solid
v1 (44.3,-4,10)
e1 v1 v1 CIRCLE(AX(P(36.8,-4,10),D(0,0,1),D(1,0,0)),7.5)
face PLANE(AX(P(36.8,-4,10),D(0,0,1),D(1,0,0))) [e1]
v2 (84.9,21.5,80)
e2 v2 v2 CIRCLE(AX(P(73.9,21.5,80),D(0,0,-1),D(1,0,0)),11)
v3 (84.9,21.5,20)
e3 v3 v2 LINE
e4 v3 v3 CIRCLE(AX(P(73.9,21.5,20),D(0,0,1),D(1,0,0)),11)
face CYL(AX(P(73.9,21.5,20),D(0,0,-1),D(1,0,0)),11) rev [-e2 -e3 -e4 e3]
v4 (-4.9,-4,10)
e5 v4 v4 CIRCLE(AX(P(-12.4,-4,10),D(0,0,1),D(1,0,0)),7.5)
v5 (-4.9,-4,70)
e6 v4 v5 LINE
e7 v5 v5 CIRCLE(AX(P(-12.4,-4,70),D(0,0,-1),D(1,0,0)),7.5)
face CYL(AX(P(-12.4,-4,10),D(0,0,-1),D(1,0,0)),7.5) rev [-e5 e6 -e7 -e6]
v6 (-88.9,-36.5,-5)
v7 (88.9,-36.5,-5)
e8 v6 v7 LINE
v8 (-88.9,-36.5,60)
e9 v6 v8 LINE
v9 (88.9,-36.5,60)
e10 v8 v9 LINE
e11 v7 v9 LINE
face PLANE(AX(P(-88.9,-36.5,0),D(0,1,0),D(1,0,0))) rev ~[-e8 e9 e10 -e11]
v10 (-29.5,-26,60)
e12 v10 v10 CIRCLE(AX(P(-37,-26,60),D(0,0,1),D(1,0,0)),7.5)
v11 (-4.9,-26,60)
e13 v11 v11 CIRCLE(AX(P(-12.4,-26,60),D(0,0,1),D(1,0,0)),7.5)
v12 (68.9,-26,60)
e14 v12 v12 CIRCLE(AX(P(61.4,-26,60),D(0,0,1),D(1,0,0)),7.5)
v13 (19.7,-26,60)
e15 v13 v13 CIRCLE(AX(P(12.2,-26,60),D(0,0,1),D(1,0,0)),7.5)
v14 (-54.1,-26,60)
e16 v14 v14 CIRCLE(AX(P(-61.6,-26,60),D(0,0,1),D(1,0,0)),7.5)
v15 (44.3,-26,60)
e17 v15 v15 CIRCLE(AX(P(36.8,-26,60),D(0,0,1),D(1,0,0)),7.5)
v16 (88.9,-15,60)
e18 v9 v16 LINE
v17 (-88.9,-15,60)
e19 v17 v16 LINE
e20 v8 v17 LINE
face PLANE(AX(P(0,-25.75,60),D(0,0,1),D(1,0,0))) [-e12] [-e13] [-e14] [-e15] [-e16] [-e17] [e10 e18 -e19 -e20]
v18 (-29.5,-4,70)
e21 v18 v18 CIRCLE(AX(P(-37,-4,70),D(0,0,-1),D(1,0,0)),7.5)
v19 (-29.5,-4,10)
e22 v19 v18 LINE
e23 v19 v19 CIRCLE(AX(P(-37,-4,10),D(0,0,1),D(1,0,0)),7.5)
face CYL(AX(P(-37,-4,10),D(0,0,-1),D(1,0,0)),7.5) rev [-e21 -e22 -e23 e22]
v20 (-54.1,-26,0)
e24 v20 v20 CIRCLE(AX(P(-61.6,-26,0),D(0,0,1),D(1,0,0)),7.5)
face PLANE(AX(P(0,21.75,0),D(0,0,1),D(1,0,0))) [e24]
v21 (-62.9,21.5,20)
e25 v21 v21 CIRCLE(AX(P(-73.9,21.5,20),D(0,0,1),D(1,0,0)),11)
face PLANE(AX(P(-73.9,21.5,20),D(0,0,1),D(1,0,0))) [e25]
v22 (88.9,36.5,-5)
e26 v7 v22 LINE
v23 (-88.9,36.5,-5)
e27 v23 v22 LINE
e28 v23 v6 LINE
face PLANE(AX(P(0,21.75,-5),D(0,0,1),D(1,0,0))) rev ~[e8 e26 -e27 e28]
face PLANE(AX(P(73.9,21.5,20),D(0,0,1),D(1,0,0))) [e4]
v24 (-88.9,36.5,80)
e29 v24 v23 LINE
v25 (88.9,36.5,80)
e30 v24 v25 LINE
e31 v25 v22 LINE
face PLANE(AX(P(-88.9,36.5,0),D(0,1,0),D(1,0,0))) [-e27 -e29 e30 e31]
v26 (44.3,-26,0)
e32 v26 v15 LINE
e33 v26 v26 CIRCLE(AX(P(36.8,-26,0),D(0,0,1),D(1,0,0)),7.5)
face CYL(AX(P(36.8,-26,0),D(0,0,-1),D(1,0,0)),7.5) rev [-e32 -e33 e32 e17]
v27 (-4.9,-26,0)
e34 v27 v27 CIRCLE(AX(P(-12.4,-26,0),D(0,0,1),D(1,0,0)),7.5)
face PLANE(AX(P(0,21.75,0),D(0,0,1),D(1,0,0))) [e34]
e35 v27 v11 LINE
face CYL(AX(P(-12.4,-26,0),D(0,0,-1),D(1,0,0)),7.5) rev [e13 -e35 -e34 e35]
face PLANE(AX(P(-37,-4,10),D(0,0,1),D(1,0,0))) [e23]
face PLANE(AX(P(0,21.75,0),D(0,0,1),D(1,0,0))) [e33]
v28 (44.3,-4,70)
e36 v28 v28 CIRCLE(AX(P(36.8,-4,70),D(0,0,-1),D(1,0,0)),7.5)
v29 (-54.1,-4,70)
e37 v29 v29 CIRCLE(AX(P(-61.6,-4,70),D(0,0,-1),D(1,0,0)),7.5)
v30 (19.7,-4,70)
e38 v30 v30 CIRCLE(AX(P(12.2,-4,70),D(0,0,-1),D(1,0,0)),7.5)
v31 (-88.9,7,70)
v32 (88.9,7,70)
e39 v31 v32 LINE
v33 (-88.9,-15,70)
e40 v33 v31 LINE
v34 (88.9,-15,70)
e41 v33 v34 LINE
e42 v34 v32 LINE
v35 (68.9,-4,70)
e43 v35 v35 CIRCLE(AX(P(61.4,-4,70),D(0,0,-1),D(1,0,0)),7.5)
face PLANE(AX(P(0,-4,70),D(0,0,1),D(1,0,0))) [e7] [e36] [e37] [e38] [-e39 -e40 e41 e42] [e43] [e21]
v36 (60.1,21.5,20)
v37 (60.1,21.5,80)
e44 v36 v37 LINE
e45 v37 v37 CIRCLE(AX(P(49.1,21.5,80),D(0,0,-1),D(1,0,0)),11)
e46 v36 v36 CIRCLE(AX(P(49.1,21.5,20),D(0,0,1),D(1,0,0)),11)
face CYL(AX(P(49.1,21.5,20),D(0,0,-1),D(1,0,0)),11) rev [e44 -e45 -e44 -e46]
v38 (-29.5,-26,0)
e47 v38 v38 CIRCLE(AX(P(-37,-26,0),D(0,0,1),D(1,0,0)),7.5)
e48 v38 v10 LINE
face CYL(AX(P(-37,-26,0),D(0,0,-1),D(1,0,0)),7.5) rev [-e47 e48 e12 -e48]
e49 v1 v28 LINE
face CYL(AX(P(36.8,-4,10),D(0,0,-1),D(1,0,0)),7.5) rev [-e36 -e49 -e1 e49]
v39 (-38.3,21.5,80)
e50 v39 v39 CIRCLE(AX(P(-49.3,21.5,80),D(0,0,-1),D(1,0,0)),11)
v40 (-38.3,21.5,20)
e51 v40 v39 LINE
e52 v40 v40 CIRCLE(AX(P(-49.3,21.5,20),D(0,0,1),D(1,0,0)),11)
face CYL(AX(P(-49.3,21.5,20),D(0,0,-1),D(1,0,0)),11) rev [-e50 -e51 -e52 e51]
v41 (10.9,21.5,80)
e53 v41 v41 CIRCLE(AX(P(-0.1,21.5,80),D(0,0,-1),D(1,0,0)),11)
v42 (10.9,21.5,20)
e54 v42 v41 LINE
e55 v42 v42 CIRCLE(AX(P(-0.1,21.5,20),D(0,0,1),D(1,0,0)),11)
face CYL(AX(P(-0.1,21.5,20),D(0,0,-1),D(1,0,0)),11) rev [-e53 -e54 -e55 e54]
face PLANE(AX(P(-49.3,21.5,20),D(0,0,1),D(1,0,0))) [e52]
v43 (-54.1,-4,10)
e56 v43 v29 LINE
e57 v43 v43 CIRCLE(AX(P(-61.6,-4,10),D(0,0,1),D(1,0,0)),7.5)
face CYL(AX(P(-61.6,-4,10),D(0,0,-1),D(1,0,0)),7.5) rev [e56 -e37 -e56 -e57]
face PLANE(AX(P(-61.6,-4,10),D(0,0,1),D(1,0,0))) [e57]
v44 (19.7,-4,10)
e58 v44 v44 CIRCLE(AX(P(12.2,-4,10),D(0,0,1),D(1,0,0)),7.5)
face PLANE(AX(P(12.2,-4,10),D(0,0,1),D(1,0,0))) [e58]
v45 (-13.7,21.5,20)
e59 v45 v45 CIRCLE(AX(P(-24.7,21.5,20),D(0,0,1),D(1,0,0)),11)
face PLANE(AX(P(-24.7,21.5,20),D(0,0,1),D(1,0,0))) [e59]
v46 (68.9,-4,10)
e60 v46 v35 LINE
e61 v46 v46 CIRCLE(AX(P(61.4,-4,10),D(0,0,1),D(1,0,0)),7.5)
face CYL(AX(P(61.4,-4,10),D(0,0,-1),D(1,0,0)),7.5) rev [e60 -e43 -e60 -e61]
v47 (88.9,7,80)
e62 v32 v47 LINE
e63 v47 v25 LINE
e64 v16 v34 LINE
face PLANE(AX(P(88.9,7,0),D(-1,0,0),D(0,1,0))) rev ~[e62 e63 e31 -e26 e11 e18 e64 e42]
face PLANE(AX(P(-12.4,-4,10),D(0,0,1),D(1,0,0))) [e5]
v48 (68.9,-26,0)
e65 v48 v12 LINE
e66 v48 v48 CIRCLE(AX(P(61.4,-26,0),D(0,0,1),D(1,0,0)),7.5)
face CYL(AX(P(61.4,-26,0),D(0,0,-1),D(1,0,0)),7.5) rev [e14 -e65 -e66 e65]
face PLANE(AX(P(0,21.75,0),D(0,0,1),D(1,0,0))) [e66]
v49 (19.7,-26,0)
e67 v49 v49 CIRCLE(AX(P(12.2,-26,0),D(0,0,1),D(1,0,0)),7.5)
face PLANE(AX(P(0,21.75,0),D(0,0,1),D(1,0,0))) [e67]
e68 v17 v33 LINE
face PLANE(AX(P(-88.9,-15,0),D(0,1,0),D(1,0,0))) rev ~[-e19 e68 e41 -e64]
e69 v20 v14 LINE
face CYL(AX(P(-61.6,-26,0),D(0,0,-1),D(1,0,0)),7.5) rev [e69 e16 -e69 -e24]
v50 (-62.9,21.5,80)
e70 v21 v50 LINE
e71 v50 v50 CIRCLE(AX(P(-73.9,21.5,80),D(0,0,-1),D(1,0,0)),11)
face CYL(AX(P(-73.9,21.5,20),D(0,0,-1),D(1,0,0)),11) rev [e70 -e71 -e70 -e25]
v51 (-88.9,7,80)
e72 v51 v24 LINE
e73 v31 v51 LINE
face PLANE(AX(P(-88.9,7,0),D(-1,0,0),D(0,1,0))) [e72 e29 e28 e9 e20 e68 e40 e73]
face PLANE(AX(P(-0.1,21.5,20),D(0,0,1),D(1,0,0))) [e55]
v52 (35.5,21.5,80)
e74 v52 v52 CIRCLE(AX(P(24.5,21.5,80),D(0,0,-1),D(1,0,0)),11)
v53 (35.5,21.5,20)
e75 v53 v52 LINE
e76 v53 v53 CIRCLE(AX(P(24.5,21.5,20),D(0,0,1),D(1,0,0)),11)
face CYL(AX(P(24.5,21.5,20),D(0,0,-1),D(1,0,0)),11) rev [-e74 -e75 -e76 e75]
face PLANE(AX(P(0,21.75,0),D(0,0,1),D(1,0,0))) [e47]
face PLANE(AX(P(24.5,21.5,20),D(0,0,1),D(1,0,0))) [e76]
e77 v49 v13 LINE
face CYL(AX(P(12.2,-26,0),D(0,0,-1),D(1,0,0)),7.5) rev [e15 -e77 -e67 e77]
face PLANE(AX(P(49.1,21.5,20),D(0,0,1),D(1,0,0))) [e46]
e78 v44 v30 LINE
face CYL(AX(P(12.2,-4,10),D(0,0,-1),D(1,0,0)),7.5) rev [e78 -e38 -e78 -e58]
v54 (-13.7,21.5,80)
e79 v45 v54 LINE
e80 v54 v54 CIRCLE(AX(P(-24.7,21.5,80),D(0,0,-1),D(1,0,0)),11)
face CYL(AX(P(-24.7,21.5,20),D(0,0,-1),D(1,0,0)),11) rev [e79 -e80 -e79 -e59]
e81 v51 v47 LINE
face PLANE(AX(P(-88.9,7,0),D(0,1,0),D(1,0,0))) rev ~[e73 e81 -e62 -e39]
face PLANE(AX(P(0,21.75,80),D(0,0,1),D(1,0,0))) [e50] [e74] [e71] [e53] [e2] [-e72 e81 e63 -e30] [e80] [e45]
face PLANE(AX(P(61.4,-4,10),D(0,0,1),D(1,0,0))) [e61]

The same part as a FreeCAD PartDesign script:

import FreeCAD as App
import Part
import Sketcher

V = App.Vector
Q = App.Units.Quantity


def add_polygon(sketch, points):
    """Adds a closed chain of lines whose ends are joined by coincident constraints."""
    first, n = sketch.GeometryCount, len(points)
    for a, b in zip(points, points[1:] + points[:1]):
        sketch.addGeometry(Part.LineSegment(App.Vector(*a, 0), App.Vector(*b, 0)), False)
    for i in range(n):
        sketch.addConstraint(Sketcher.Constraint("Coincident", first + i, 2, first + (i + 1) % n, 1))

doc = App.newDocument("Part")
body = doc.addObject("PartDesign::Body", "Body")

# Sketch on XY plane
sketch1 = body.newObject("Sketcher::SketchObject", "Sketch")
sketch1.AttachmentSupport = (doc.getObject("XY_Plane"), [""])
sketch1.MapMode = "FlatFace"
add_polygon(sketch1, [(-89, 36), (-89, -36), (89, -36), (89, 36)])  # lines 0-3
sketch1.addConstraint(Sketcher.Constraint("Vertical", 0))
sketch1.addConstraint(Sketcher.Constraint("Horizontal", 1))
sketch1.addConstraint(Sketcher.Constraint("Vertical", 2))
sketch1.addConstraint(Sketcher.Constraint("Horizontal", 3))
sketch1.addConstraint(Sketcher.Constraint("Symmetric", 0, 2, 2, 2, -1, 1))
sketch1.addConstraint(Sketcher.Constraint("DistanceY", 0, 2, 0, 1, Q("73 mm")))
sketch1.addConstraint(Sketcher.Constraint("DistanceX", 1, 1, 1, 2, Q("177.8 mm")))
pad1 = body.newObject("PartDesign::Pad", "Pad")
pad1.Profile = sketch1
pad1.Length = 5
pad1.Reversed = True

# Sketch on XY plane
sketch2 = body.newObject("Sketcher::SketchObject", "Sketch001")
sketch2.AttachmentSupport = (doc.getObject("XY_Plane"), [""])
sketch2.MapMode = "FlatFace"
add_polygon(sketch2, [(-89, -15), (-89, -36), (89, -36), (89, -15)])  # lines 0-3
sketch2.addGeometry(Part.Circle(V(-62, -26, 0), V(0, 0, 1), 8), False)  # 4
sketch2.addGeometry(Part.Circle(V(-37, -26, 0), V(0, 0, 1), 8), False)  # 5
sketch2.addGeometry(Part.Circle(V(-12, -26, 0), V(0, 0, 1), 8), False)  # 6
sketch2.addGeometry(Part.Circle(V(12, -26, 0), V(0, 0, 1), 8), False)  # 7
sketch2.addGeometry(Part.Circle(V(37, -26, 0), V(0, 0, 1), 8), False)  # 8
sketch2.addGeometry(Part.Circle(V(61, -26, 0), V(0, 0, 1), 8), False)  # 9
sketch2.addConstraint(Sketcher.Constraint("Vertical", 0))
sketch2.addConstraint(Sketcher.Constraint("Horizontal", 1))
sketch2.addConstraint(Sketcher.Constraint("Vertical", 2))
sketch2.addConstraint(Sketcher.Constraint("Horizontal", 3))
sketch2.addConstraint(Sketcher.Constraint("Equal", 4, 5))
sketch2.addConstraint(Sketcher.Constraint("Equal", 5, 6))
sketch2.addConstraint(Sketcher.Constraint("Equal", 6, 7))
sketch2.addConstraint(Sketcher.Constraint("Equal", 7, 8))
sketch2.addConstraint(Sketcher.Constraint("Equal", 8, 9))
sketch2.addConstraint(Sketcher.Constraint("Horizontal", 4, 3, 5, 3))
sketch2.addConstraint(Sketcher.Constraint("Horizontal", 5, 3, 6, 3))
sketch2.addConstraint(Sketcher.Constraint("Horizontal", 6, 3, 7, 3))
sketch2.addConstraint(Sketcher.Constraint("Horizontal", 7, 3, 8, 3))
sketch2.addConstraint(Sketcher.Constraint("Horizontal", 8, 3, 9, 3))
sketch2.addConstraint(Sketcher.Constraint("Diameter", 4, Q("15 mm")))
sketch2.addConstraint(Sketcher.Constraint("DistanceX", 1, 1, 1, 2, Q("177.8 mm")))
sketch2.addConstraint(Sketcher.Constraint("DistanceY", 0, 2, 0, 1, Q("21.5 mm")))
sketch2.addConstraint(Sketcher.Constraint("DistanceY", 4, 3, -1, 1, Q("26 mm")))
sketch2.addConstraint(Sketcher.Constraint("DistanceX", 5, 3, -1, 1, Q("37 mm")))
sketch2.addConstraint(Sketcher.Constraint("DistanceY", 2, 2, -1, 1, Q("15 mm")))
sketch2.addConstraint(Sketcher.Constraint("DistanceX", 4, 3, 9, 3, Q("123 mm")))
sketch2.addConstraint(Sketcher.Constraint("DistanceX", 4, 3, -1, 1, Q("61.6 mm")))
sketch2.addConstraint(Sketcher.Constraint("DistanceX", 6, 3, -1, 1, Q("12.4 mm")))
sketch2.addConstraint(Sketcher.Constraint("DistanceX", -1, 1, 7, 3, Q("12.2 mm")))
sketch2.addConstraint(Sketcher.Constraint("DistanceX", -1, 1, 8, 3, Q("36.8 mm")))
sketch2.addConstraint(Sketcher.Constraint("DistanceX", 0, 2, -1, 1, Q("88.9 mm")))
pad2 = body.newObject("PartDesign::Pad", "Pad001")
pad2.Profile = sketch2
pad2.Length = 60

# Sketch on XY plane
sketch3 = body.newObject("Sketcher::SketchObject", "Sketch002")
sketch3.AttachmentSupport = (doc.getObject("XY_Plane"), [""])
sketch3.MapMode = "FlatFace"
add_polygon(sketch3, [(-89, 7), (-89, -15), (89, -15), (89, 7)])  # lines 0-3
sketch3.addConstraint(Sketcher.Constraint("Vertical", 0))
sketch3.addConstraint(Sketcher.Constraint("Horizontal", 1))
sketch3.addConstraint(Sketcher.Constraint("Vertical", 2))
sketch3.addConstraint(Sketcher.Constraint("Horizontal", 3))
sketch3.addConstraint(Sketcher.Constraint("DistanceY", 0, 2, 0, 1, Q("22 mm")))
sketch3.addConstraint(Sketcher.Constraint("DistanceX", 1, 1, 1, 2, Q("177.8 mm")))
sketch3.addConstraint(Sketcher.Constraint("DistanceY", 0, 2, -1, 1, Q("15 mm")))
sketch3.addConstraint(Sketcher.Constraint("DistanceX", 0, 2, -1, 1, Q("88.9 mm")))
pad3 = body.newObject("PartDesign::Pad", "Pad002")
pad3.Profile = sketch3
pad3.Length = 70
body2 = doc.addObject("PartDesign::Body", "Body001")

# Sketch on XY plane
sketch4 = body2.newObject("Sketcher::SketchObject", "Sketch003")
sketch4.AttachmentSupport = (doc.getObject("XY_Plane001"), [""])
sketch4.MapMode = "FlatFace"
sketch4.addGeometry(Part.Circle(V(-62, -4, 0), V(0, 0, 1), 8), False)
sketch4.addConstraint(Sketcher.Constraint("Diameter", 0, Q("15 mm")))
sketch4.addConstraint(Sketcher.Constraint("DistanceY", 0, 3, -1, 1, Q("4 mm")))
sketch4.addConstraint(Sketcher.Constraint("DistanceX", 0, 3, -1, 1, Q("61.6 mm")))
pad4 = body2.newObject("PartDesign::Pad", "Pad003")
pad4.Profile = sketch4
pad4.Length = 70
body3 = doc.addObject("PartDesign::Body", "Body002")

# Sketch on XY plane
sketch5 = body3.newObject("Sketcher::SketchObject", "Sketch004")
sketch5.AttachmentSupport = (doc.getObject("XY_Plane002"), [""])
sketch5.MapMode = "FlatFace"
sketch5.addGeometry(Part.Circle(V(-37, -4, 0), V(0, 0, 1), 8), False)
sketch5.addConstraint(Sketcher.Constraint("Diameter", 0, Q("15 mm")))
sketch5.addConstraint(Sketcher.Constraint("DistanceX", 0, 3, -1, 1, Q("37 mm")))
sketch5.addConstraint(Sketcher.Constraint("DistanceY", 0, 3, -1, 1, Q("4 mm")))
pad5 = body3.newObject("PartDesign::Pad", "Pad004")
pad5.Profile = sketch5
pad5.Length = 70
body4 = doc.addObject("PartDesign::Body", "Body003")

# Sketch on XY plane
sketch6 = body4.newObject("Sketcher::SketchObject", "Sketch005")
sketch6.AttachmentSupport = (doc.getObject("XY_Plane003"), [""])
sketch6.MapMode = "FlatFace"
sketch6.addGeometry(Part.Circle(V(-12, -4, 0), V(0, 0, 1), 8), False)
sketch6.addConstraint(Sketcher.Constraint("Diameter", 0, Q("15 mm")))
sketch6.addConstraint(Sketcher.Constraint("DistanceY", 0, 3, -1, 1, Q("4 mm")))
sketch6.addConstraint(Sketcher.Constraint("DistanceX", 0, 3, -1, 1, Q("12.4 mm")))
pad6 = body4.newObject("PartDesign::Pad", "Pad005")
pad6.Profile = sketch6
pad6.Length = 70
body5 = doc.addObject("PartDesign::Body", "Body004")

# Sketch on XY plane
sketch7 = body5.newObject("Sketcher::SketchObject", "Sketch006")
sketch7.AttachmentSupport = (doc.getObject("XY_Plane004"), [""])
sketch7.MapMode = "FlatFace"
sketch7.addGeometry(Part.Circle(V(12, -4, 0), V(0, 0, 1), 8), False)
sketch7.addConstraint(Sketcher.Constraint("Diameter", 0, Q("15 mm")))
sketch7.addConstraint(Sketcher.Constraint("DistanceY", 0, 3, -1, 1, Q("4 mm")))
sketch7.addConstraint(Sketcher.Constraint("DistanceX", -1, 1, 0, 3, Q("12.2 mm")))
pad7 = body5.newObject("PartDesign::Pad", "Pad006")
pad7.Profile = sketch7
pad7.Length = 70
body6 = doc.addObject("PartDesign::Body", "Body005")

# Sketch on XY plane
sketch8 = body6.newObject("Sketcher::SketchObject", "Sketch007")
sketch8.AttachmentSupport = (doc.getObject("XY_Plane005"), [""])
sketch8.MapMode = "FlatFace"
sketch8.addGeometry(Part.Circle(V(37, -4, 0), V(0, 0, 1), 8), False)
sketch8.addConstraint(Sketcher.Constraint("Diameter", 0, Q("15 mm")))
sketch8.addConstraint(Sketcher.Constraint("DistanceY", 0, 3, -1, 1, Q("4 mm")))
sketch8.addConstraint(Sketcher.Constraint("DistanceX", -1, 1, 0, 3, Q("36.8 mm")))
pad8 = body6.newObject("PartDesign::Pad", "Pad007")
pad8.Profile = sketch8
pad8.Length = 70
body7 = doc.addObject("PartDesign::Body", "Body006")

# Sketch on XY plane
sketch9 = body7.newObject("Sketcher::SketchObject", "Sketch008")
sketch9.AttachmentSupport = (doc.getObject("XY_Plane006"), [""])
sketch9.MapMode = "FlatFace"
sketch9.addGeometry(Part.Circle(V(61, -4, 0), V(0, 0, 1), 8), False)
sketch9.addConstraint(Sketcher.Constraint("Diameter", 0, Q("15 mm")))
sketch9.addConstraint(Sketcher.Constraint("DistanceY", 0, 3, -1, 1, Q("4 mm")))
sketch9.addConstraint(Sketcher.Constraint("DistanceX", -1, 1, 0, 3, Q("61.4 mm")))
pad9 = body7.newObject("PartDesign::Pad", "Pad008")
pad9.Profile = sketch9
pad9.Length = 70
body8 = doc.addObject("PartDesign::Body", "Body007")
doc.recompute()

body2.Placement = App.Placement(V(0, 0, 10), App.Rotation(V(0, 0, 1), 0))
boolean = body8.newObject("PartDesign::Boolean", "Boolean")
boolean.Type = "Fuse"
boolean.addObjects([body2])
body9 = doc.addObject("PartDesign::Body", "Body008")
doc.recompute()

body3.Placement = App.Placement(V(0, 0, 10), App.Rotation(V(0, 0, 1), 0))
boolean2 = body9.newObject("PartDesign::Boolean", "Boolean001")
boolean2.Type = "Fuse"
boolean2.addObjects([body3])
body10 = doc.addObject("PartDesign::Body", "Body009")
doc.recompute()

body4.Placement = App.Placement(V(0, 0, 10), App.Rotation(V(0, 0, 1), 0))
boolean3 = body10.newObject("PartDesign::Boolean", "Boolean002")
boolean3.Type = "Fuse"
boolean3.addObjects([body4])
body11 = doc.addObject("PartDesign::Body", "Body010")
doc.recompute()

body5.Placement = App.Placement(V(0, 0, 10), App.Rotation(V(0, 0, 1), 0))
boolean4 = body11.newObject("PartDesign::Boolean", "Boolean003")
boolean4.Type = "Fuse"
boolean4.addObjects([body5])
body12 = doc.addObject("PartDesign::Body", "Body011")
doc.recompute()

body6.Placement = App.Placement(V(0, 0, 10), App.Rotation(V(0, 0, 1), 0))
boolean5 = body12.newObject("PartDesign::Boolean", "Boolean004")
boolean5.Type = "Fuse"
boolean5.addObjects([body6])
body13 = doc.addObject("PartDesign::Body", "Body012")
doc.recompute()

body7.Placement = App.Placement(V(0, 0, 10), App.Rotation(V(0, 0, 1), 0))
boolean6 = body13.newObject("PartDesign::Boolean", "Boolean005")
boolean6.Type = "Fuse"
boolean6.addObjects([body7])
doc.recompute()

boolean7 = body.newObject("PartDesign::Boolean", "Boolean006")
boolean7.Type = "Cut"
boolean7.addObjects([body8])
doc.recompute()

boolean8 = body.newObject("PartDesign::Boolean", "Boolean007")
boolean8.Type = "Cut"
boolean8.addObjects([body9])
doc.recompute()

boolean9 = body.newObject("PartDesign::Boolean", "Boolean008")
boolean9.Type = "Cut"
boolean9.addObjects([body10])
doc.recompute()

boolean10 = body.newObject("PartDesign::Boolean", "Boolean009")
boolean10.Type = "Cut"
boolean10.addObjects([body11])
doc.recompute()

boolean11 = body.newObject("PartDesign::Boolean", "Boolean010")
boolean11.Type = "Cut"
boolean11.addObjects([body12])
doc.recompute()

boolean12 = body.newObject("PartDesign::Boolean", "Boolean011")
boolean12.Type = "Cut"
boolean12.addObjects([body13])

# Sketch on XY plane
sketch10 = body.newObject("Sketcher::SketchObject", "Sketch009")
sketch10.AttachmentSupport = (doc.getObject("XY_Plane"), [""])
sketch10.MapMode = "FlatFace"
add_polygon(sketch10, [(-89, 36), (-89, 7), (89, 7), (89, 36)])  # lines 0-3
sketch10.addConstraint(Sketcher.Constraint("Vertical", 0))
sketch10.addConstraint(Sketcher.Constraint("Horizontal", 1))
sketch10.addConstraint(Sketcher.Constraint("Vertical", 2))
sketch10.addConstraint(Sketcher.Constraint("Horizontal", 3))
sketch10.addConstraint(Sketcher.Constraint("DistanceX", 1, 1, 1, 2, Q("177.8 mm")))
sketch10.addConstraint(Sketcher.Constraint("DistanceY", 0, 2, 0, 1, Q("29.5 mm")))
sketch10.addConstraint(Sketcher.Constraint("DistanceY", -1, 1, 0, 2, Q("7 mm")))
sketch10.addConstraint(Sketcher.Constraint("DistanceX", 0, 2, -1, 1, Q("88.9 mm")))
pad10 = body.newObject("PartDesign::Pad", "Pad009")
pad10.Profile = sketch10
pad10.Length = 80
body14 = doc.addObject("PartDesign::Body", "Body013")

# Sketch on XY plane
sketch11 = body14.newObject("Sketcher::SketchObject", "Sketch010")
sketch11.AttachmentSupport = (doc.getObject("XY_Plane013"), [""])
sketch11.MapMode = "FlatFace"
sketch11.addGeometry(Part.Circle(V(-74, 22, 0), V(0, 0, 1), 11), False)
sketch11.addConstraint(Sketcher.Constraint("Diameter", 0, Q("22 mm")))
sketch11.addConstraint(Sketcher.Constraint("DistanceX", 0, 3, -1, 1, Q("73.9 mm")))
sketch11.addConstraint(Sketcher.Constraint("DistanceY", -1, 1, 0, 3, Q("21.5 mm")))
pad11 = body14.newObject("PartDesign::Pad", "Pad010")
pad11.Profile = sketch11
pad11.Length = 90
body15 = doc.addObject("PartDesign::Body", "Body014")

# Sketch on XY plane
sketch12 = body15.newObject("Sketcher::SketchObject", "Sketch011")
sketch12.AttachmentSupport = (doc.getObject("XY_Plane014"), [""])
sketch12.MapMode = "FlatFace"
sketch12.addGeometry(Part.Circle(V(-49, 22, 0), V(0, 0, 1), 11), False)
sketch12.addConstraint(Sketcher.Constraint("Diameter", 0, Q("22 mm")))
sketch12.addConstraint(Sketcher.Constraint("DistanceX", 0, 3, -1, 1, Q("49.3 mm")))
sketch12.addConstraint(Sketcher.Constraint("DistanceY", -1, 1, 0, 3, Q("21.5 mm")))
pad12 = body15.newObject("PartDesign::Pad", "Pad011")
pad12.Profile = sketch12
pad12.Length = 90
body16 = doc.addObject("PartDesign::Body", "Body015")

# Sketch on XY plane
sketch13 = body16.newObject("Sketcher::SketchObject", "Sketch012")
sketch13.AttachmentSupport = (doc.getObject("XY_Plane015"), [""])
sketch13.MapMode = "FlatFace"
sketch13.addGeometry(Part.Circle(V(-25, 22, 0), V(0, 0, 1), 11), False)
sketch13.addConstraint(Sketcher.Constraint("Diameter", 0, Q("22 mm")))
sketch13.addConstraint(Sketcher.Constraint("DistanceX", 0, 3, -1, 1, Q("24.7 mm")))
sketch13.addConstraint(Sketcher.Constraint("DistanceY", -1, 1, 0, 3, Q("21.5 mm")))
pad13 = body16.newObject("PartDesign::Pad", "Pad012")
pad13.Profile = sketch13
pad13.Length = 90
body17 = doc.addObject("PartDesign::Body", "Body016")

# Sketch on XY plane
sketch14 = body17.newObject("Sketcher::SketchObject", "Sketch013")
sketch14.AttachmentSupport = (doc.getObject("XY_Plane016"), [""])
sketch14.MapMode = "FlatFace"
sketch14.addGeometry(Part.Circle(V(0, 22, 0), V(0, 0, 1), 11), False)
sketch14.addConstraint(Sketcher.Constraint("Diameter", 0, Q("22 mm")))
sketch14.addConstraint(Sketcher.Constraint("DistanceX", 0, 3, -1, 1, Q("0.1 mm")))
sketch14.addConstraint(Sketcher.Constraint("DistanceY", -1, 1, 0, 3, Q("21.5 mm")))
pad14 = body17.newObject("PartDesign::Pad", "Pad013")
pad14.Profile = sketch14
pad14.Length = 90
body18 = doc.addObject("PartDesign::Body", "Body017")

# Sketch on XY plane
sketch15 = body18.newObject("Sketcher::SketchObject", "Sketch014")
sketch15.AttachmentSupport = (doc.getObject("XY_Plane017"), [""])
sketch15.MapMode = "FlatFace"
sketch15.addGeometry(Part.Circle(V(24, 22, 0), V(0, 0, 1), 11), False)
sketch15.addConstraint(Sketcher.Constraint("Diameter", 0, Q("22 mm")))
sketch15.addConstraint(Sketcher.Constraint("DistanceX", -1, 1, 0, 3, Q("24.5 mm")))
sketch15.addConstraint(Sketcher.Constraint("DistanceY", -1, 1, 0, 3, Q("21.5 mm")))
pad15 = body18.newObject("PartDesign::Pad", "Pad014")
pad15.Profile = sketch15
pad15.Length = 90
body19 = doc.addObject("PartDesign::Body", "Body018")

# Sketch on XY plane
sketch16 = body19.newObject("Sketcher::SketchObject", "Sketch015")
sketch16.AttachmentSupport = (doc.getObject("XY_Plane018"), [""])
sketch16.MapMode = "FlatFace"
sketch16.addGeometry(Part.Circle(V(49, 22, 0), V(0, 0, 1), 11), False)
sketch16.addConstraint(Sketcher.Constraint("Diameter", 0, Q("22 mm")))
sketch16.addConstraint(Sketcher.Constraint("DistanceX", -1, 1, 0, 3, Q("49.1 mm")))
sketch16.addConstraint(Sketcher.Constraint("DistanceY", -1, 1, 0, 3, Q("21.5 mm")))
pad16 = body19.newObject("PartDesign::Pad", "Pad015")
pad16.Profile = sketch16
pad16.Length = 90
body20 = doc.addObject("PartDesign::Body", "Body019")

# Sketch on XY plane
sketch17 = body20.newObject("Sketcher::SketchObject", "Sketch016")
sketch17.AttachmentSupport = (doc.getObject("XY_Plane019"), [""])
sketch17.MapMode = "FlatFace"
sketch17.addGeometry(Part.Circle(V(74, 22, 0), V(0, 0, 1), 11), False)
sketch17.addConstraint(Sketcher.Constraint("Diameter", 0, Q("22 mm")))
sketch17.addConstraint(Sketcher.Constraint("DistanceX", -1, 1, 0, 3, Q("73.9 mm")))
sketch17.addConstraint(Sketcher.Constraint("DistanceY", -1, 1, 0, 3, Q("21.5 mm")))
pad17 = body20.newObject("PartDesign::Pad", "Pad016")
pad17.Profile = sketch17
pad17.Length = 90
body21 = doc.addObject("PartDesign::Body", "Body020")
doc.recompute()

body14.Placement = App.Placement(V(0, 0, 20), App.Rotation(V(0, 0, 1), 0))
boolean13 = body21.newObject("PartDesign::Boolean", "Boolean012")
boolean13.Type = "Fuse"
boolean13.addObjects([body14])
body22 = doc.addObject("PartDesign::Body", "Body021")
doc.recompute()

body20.Placement = App.Placement(V(0, 0, 20), App.Rotation(V(0, 0, 1), 0))
boolean14 = body22.newObject("PartDesign::Boolean", "Boolean013")
boolean14.Type = "Fuse"
boolean14.addObjects([body20])
body23 = doc.addObject("PartDesign::Body", "Body022")
doc.recompute()

body15.Placement = App.Placement(V(0, 0, 20), App.Rotation(V(0, 0, 1), 0))
boolean15 = body23.newObject("PartDesign::Boolean", "Boolean014")
boolean15.Type = "Fuse"
boolean15.addObjects([body15])
body24 = doc.addObject("PartDesign::Body", "Body023")
doc.recompute()

body16.Placement = App.Placement(V(0, 0, 20), App.Rotation(V(0, 0, 1), 0))
boolean16 = body24.newObject("PartDesign::Boolean", "Boolean015")
boolean16.Type = "Fuse"
boolean16.addObjects([body16])
body25 = doc.addObject("PartDesign::Body", "Body024")
doc.recompute()

body17.Placement = App.Placement(V(0, 0, 20), App.Rotation(V(0, 0, 1), 0))
boolean17 = body25.newObject("PartDesign::Boolean", "Boolean016")
boolean17.Type = "Fuse"
boolean17.addObjects([body17])
body26 = doc.addObject("PartDesign::Body", "Body025")
doc.recompute()

body18.Placement = App.Placement(V(0, 0, 20), App.Rotation(V(0, 0, 1), 0))
boolean18 = body26.newObject("PartDesign::Boolean", "Boolean017")
boolean18.Type = "Fuse"
boolean18.addObjects([body18])
body27 = doc.addObject("PartDesign::Body", "Body026")
doc.recompute()

body19.Placement = App.Placement(V(0, 0, 20), App.Rotation(V(0, 0, 1), 0))
boolean19 = body27.newObject("PartDesign::Boolean", "Boolean018")
boolean19.Type = "Fuse"
boolean19.addObjects([body19])
doc.recompute()

boolean20 = body.newObject("PartDesign::Boolean", "Boolean019")
boolean20.Type = "Cut"
boolean20.addObjects([body21])
doc.recompute()

boolean21 = body.newObject("PartDesign::Boolean", "Boolean020")
boolean21.Type = "Cut"
boolean21.addObjects([body22])
doc.recompute()

boolean22 = body.newObject("PartDesign::Boolean", "Boolean021")
boolean22.Type = "Cut"
boolean22.addObjects([body23])
doc.recompute()

boolean23 = body.newObject("PartDesign::Boolean", "Boolean022")
boolean23.Type = "Cut"
boolean23.addObjects([body24])
doc.recompute()

boolean24 = body.newObject("PartDesign::Boolean", "Boolean023")
boolean24.Type = "Cut"
boolean24.addObjects([body25])
doc.recompute()

boolean25 = body.newObject("PartDesign::Boolean", "Boolean024")
boolean25.Type = "Cut"
boolean25.addObjects([body26])
doc.recompute()

boolean26 = body.newObject("PartDesign::Boolean", "Boolean025")
boolean26.Type = "Cut"
boolean26.addObjects([body27])

doc.recompute()
